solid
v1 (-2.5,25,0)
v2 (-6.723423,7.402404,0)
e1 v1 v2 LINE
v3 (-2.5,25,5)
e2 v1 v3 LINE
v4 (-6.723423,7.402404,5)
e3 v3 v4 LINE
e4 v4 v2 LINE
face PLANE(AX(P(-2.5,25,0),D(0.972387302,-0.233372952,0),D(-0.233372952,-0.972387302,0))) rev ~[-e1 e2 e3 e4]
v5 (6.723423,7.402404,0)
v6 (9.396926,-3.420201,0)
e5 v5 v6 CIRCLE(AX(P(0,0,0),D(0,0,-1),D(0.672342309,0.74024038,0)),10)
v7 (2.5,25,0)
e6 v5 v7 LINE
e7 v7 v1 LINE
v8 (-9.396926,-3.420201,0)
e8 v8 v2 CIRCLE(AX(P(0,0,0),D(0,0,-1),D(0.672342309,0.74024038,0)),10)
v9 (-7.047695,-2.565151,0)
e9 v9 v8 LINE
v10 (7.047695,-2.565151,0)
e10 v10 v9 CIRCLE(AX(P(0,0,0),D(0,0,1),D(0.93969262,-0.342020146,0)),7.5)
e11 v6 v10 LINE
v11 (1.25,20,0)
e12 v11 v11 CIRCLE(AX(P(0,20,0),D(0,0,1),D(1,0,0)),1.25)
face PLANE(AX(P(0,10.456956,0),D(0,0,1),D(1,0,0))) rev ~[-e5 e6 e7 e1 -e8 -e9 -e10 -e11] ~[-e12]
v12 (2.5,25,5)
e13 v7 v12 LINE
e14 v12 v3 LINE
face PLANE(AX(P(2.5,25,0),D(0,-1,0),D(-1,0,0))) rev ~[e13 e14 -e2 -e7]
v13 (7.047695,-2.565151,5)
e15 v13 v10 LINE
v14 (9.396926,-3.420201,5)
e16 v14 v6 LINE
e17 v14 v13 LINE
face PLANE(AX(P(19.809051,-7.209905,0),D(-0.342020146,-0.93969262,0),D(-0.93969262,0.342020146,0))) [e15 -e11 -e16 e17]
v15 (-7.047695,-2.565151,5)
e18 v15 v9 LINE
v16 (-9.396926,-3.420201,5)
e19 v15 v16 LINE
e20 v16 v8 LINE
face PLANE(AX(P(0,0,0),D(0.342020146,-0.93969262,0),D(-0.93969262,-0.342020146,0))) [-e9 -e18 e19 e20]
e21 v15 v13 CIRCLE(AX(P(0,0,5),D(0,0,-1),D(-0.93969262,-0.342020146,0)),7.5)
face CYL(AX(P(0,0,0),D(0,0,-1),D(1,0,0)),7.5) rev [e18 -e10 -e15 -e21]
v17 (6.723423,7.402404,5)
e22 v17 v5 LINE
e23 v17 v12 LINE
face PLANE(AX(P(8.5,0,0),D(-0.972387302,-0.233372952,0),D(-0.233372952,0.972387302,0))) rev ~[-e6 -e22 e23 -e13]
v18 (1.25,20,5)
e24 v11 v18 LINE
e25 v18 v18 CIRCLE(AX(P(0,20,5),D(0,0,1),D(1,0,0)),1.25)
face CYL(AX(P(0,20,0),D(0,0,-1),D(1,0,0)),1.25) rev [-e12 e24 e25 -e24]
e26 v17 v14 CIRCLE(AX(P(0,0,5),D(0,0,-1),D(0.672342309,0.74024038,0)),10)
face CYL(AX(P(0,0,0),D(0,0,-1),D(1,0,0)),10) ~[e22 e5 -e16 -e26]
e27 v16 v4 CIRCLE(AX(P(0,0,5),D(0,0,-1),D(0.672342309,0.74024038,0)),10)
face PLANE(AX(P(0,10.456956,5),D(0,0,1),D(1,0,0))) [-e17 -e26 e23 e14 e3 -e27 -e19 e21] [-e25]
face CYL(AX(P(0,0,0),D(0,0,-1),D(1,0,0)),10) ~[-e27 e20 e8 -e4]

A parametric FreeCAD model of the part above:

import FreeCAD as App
import Part
import Sketcher

V = App.Vector
Q = App.Units.Quantity

doc = App.newDocument("Part")
body = doc.addObject("PartDesign::Body", "Body")

# Sketch on XY plane
sketch1 = body.newObject("Sketcher::SketchObject", "Sketch")
sketch1.AttachmentSupport = (doc.getObject("XY_Plane"), [""])
sketch1.MapMode = "FlatFace"
sketch1.addGeometry(Part.Circle(V(0, 0, 0), V(0, 0, 1), 10), False)
sketch1.addConstraint([
    Sketcher.Constraint("Coincident", 0, 3, -1, 1),
    Sketcher.Constraint("Diameter", 0, Q("20 mm")),
])
pad1 = body.newObject("PartDesign::Pad", "Pad")
pad1.Profile = sketch1
pad1.Length = 5

# Sketch on XY plane
sketch2 = body.newObject("Sketcher::SketchObject", "Sketch001")
sketch2.AttachmentSupport = (doc.getObject("XY_Plane"), [""])
sketch2.MapMode = "FlatFace"
sketch2.addGeometry([
    Part.LineSegment(V(-2.5, 25, 0), V(-8.5, 0, 0)),
    Part.LineSegment(V(-8.5, 0, 0), V(8.5, 0, 0)),
    Part.LineSegment(V(8.5, 0, 0), V(2.5, 25, 0)),
    Part.LineSegment(V(2.5, 25, 0), V(-2.5, 25, 0)),
], False)
sketch2.addConstraint([
    Sketcher.Constraint("Coincident", 0, 2, 1, 1),
    Sketcher.Constraint("Coincident", 1, 2, 2, 1),
    Sketcher.Constraint("Coincident", 2, 2, 3, 1),
    Sketcher.Constraint("Coincident", 3, 2, 0, 1),
    Sketcher.Constraint("Horizontal", 1),
    Sketcher.Constraint("Horizontal", 3),
    Sketcher.Constraint("Symmetric", 0, 2, 1, 2, -1, 1),
    Sketcher.Constraint("Equal", 0, 2),
    Sketcher.Constraint("DistanceX", 1, 1, 1, 2, Q("17 mm")),
    Sketcher.Constraint("DistanceX", 3, 2, 3, 1, Q("5 mm")),
    Sketcher.Constraint("DistanceY", -1, 1, 2, 2, Q("25 mm")),
])
pad2 = body.newObject("PartDesign::Pad", "Pad001")
pad2.Profile = sketch2
pad2.Length = 5

# Sketch on XY plane
sketch3 = body.newObject("Sketcher::SketchObject", "Sketch002")
sketch3.AttachmentSupport = (doc.getObject("XY_Plane"), [""])
sketch3.MapMode = "FlatFace"
sketch3.addGeometry(Part.Circle(V(0, 0, 0), V(0, 0, 1), 7.5), False)
sketch3.addConstraint([
    Sketcher.Constraint("Coincident", 0, 3, -1, 1),
    Sketcher.Constraint("Diameter", 0, Q("15 mm")),
])
pocket1 = body.newObject("PartDesign::Pocket", "Pocket")
pocket1.Profile = sketch3
pocket1.Length = 5
pocket1.Reversed = True

# Sketch on XY plane
sketch4 = body.newObject("Sketcher::SketchObject", "Sketch003")
sketch4.AttachmentSupport = (doc.getObject("XY_Plane"), [""])
sketch4.MapMode = "FlatFace"
sketch4.addGeometry([
    Part.LineSegment(V(19.809051, -7.209905, 0), V(0, 0, 0)),
    Part.LineSegment(V(0, 0, 0), V(-19.809051, -7.209905, 0)),
    Part.LineSegment(V(-19.809051, -7.209905, 0), V(0, -14.41981, 0)),
    Part.LineSegment(V(0, -14.41981, 0), V(19.809051, -7.209905, 0)),
], False)
sketch4.addConstraint([
    Sketcher.Constraint("Coincident", 0, 2, 1, 1),
    Sketcher.Constraint("Coincident", 1, 2, 2, 1),
    Sketcher.Constraint("Coincident", 2, 2, 3, 1),
    Sketcher.Constraint("Coincident", 3, 2, 0, 1),
    Sketcher.Constraint("Coincident", 0, 2, -1, 1),
    Sketcher.Constraint("Symmetric", 1, 2, 3, 2, -2),
    Sketcher.Constraint("PointOnObject", 2, 2, -2),
    Sketcher.Constraint("Parallel", 0, 2),
    Sketcher.Constraint("Angle", 0, Q("160 deg")),
    Sketcher.Constraint("Distance", 0, Q("21.080352 mm")),
])
pocket2 = body.newObject("PartDesign::Pocket", "Pocket001")
pocket2.Profile = sketch4
pocket2.Length = 5
pocket2.Reversed = True

# Sketch on XY plane
sketch5 = body.newObject("Sketcher::SketchObject", "Sketch004")
sketch5.AttachmentSupport = (doc.getObject("XY_Plane"), [""])
sketch5.MapMode = "FlatFace"
sketch5.addGeometry(Part.Circle(V(0, 20, 0), V(0, 0, 1), 1.25), False)
sketch5.addConstraint([
    Sketcher.Constraint("PointOnObject", 0, 3, -2),
    Sketcher.Constraint("Diameter", 0, Q("2.5 mm")),
    Sketcher.Constraint("DistanceY", -1, 1, 0, 3, Q("20 mm")),
])
pocket3 = body.newObject("PartDesign::Pocket", "Pocket002")
pocket3.Profile = sketch5
pocket3.Length = 5
pocket3.Reversed = True

doc.recompute()
